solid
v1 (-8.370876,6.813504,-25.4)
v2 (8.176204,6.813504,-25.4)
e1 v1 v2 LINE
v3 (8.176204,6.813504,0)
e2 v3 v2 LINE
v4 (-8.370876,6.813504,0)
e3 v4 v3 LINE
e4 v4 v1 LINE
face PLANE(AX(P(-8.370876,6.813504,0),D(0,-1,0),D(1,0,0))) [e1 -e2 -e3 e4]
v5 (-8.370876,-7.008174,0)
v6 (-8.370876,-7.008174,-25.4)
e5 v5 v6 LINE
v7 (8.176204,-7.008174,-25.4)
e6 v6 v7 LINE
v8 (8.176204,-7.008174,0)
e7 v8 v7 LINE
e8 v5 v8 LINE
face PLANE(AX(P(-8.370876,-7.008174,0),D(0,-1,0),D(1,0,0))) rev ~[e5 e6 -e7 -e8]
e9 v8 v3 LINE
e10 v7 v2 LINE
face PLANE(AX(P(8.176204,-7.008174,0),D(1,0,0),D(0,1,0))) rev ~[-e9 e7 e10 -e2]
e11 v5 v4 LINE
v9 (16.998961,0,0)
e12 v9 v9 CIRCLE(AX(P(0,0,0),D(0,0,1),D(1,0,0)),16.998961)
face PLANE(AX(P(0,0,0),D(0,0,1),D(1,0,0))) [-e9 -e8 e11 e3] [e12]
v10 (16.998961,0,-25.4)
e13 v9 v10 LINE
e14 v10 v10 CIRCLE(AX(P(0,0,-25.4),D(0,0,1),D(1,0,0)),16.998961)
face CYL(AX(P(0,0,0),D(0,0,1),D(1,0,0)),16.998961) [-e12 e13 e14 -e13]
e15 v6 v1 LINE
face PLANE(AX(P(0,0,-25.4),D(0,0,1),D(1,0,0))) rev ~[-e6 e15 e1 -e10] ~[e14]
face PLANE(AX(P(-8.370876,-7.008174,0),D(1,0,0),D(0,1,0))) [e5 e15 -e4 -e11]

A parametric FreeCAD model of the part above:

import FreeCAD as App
import Part
import Sketcher

V = App.Vector
Q = App.Units.Quantity

doc = App.newDocument("Part")
body = doc.addObject("PartDesign::Body", "Body")

sketch1 = doc.addObject("Sketcher::SketchObject", "Sketch")
body.addObject(sketch1)
sketch1.AttachmentSupport = (doc.XY_Plane, [""])
sketch1.MapMode = "FlatFace"
sketch1.addGeometry(Part.Circle(V(0, 0, 0), V(0, 0, 1), 17), False)
sketch1.addConstraint([
    Sketcher.Constraint("Coincident", 0, 3, -1, 1),
    Sketcher.Constraint("Diameter", 0, Q("33.997922 mm")),
])
pad1 = doc.addObject("PartDesign::Pad", "Pad")
body.addObject(pad1)
pad1.Profile = sketch1
pad1.Length = Q("1 in")
pad1.Reversed = True

sketch2 = doc.addObject("Sketcher::SketchObject", "Sketch001")
body.addObject(sketch2)
sketch2.AttachmentSupport = (doc.XY_Plane, [""])
sketch2.MapMode = "FlatFace"
sketch2.addGeometry([
    Part.LineSegment(V(-8, 7, 0), V(-8, -7, 0)),
    Part.LineSegment(V(-8, -7, 0), V(8, -7, 0)),
    Part.LineSegment(V(8, -7, 0), V(8, 7, 0)),
    Part.LineSegment(V(8, 7, 0), V(-8, 7, 0)),
], False)
sketch2.addConstraint([
    Sketcher.Constraint("Coincident", 0, 2, 1, 1),
    Sketcher.Constraint("Coincident", 1, 2, 2, 1),
    Sketcher.Constraint("Coincident", 2, 2, 3, 1),
    Sketcher.Constraint("Coincident", 3, 2, 0, 1),
    Sketcher.Constraint("Vertical", 0),
    Sketcher.Constraint("Horizontal", 1),
    Sketcher.Constraint("Vertical", 2),
    Sketcher.Constraint("Horizontal", 3),
    Sketcher.Constraint("DistanceX", 1, 1, 1, 2, Q("16.54708 mm")),
    Sketcher.Constraint("DistanceY", 0, 2, 0, 1, Q("13.821679 mm")),
    Sketcher.Constraint("DistanceX", 0, 2, -1, 1, Q("8.370876 mm")),
    Sketcher.Constraint("DistanceY", 0, 2, -1, 1, Q("7.008174 mm")),
])
pocket1 = doc.addObject("PartDesign::Pocket", "Pocket")
body.addObject(pocket1)
pocket1.Profile = sketch2
pocket1.Type = "ThroughAll"

doc.recompute()
